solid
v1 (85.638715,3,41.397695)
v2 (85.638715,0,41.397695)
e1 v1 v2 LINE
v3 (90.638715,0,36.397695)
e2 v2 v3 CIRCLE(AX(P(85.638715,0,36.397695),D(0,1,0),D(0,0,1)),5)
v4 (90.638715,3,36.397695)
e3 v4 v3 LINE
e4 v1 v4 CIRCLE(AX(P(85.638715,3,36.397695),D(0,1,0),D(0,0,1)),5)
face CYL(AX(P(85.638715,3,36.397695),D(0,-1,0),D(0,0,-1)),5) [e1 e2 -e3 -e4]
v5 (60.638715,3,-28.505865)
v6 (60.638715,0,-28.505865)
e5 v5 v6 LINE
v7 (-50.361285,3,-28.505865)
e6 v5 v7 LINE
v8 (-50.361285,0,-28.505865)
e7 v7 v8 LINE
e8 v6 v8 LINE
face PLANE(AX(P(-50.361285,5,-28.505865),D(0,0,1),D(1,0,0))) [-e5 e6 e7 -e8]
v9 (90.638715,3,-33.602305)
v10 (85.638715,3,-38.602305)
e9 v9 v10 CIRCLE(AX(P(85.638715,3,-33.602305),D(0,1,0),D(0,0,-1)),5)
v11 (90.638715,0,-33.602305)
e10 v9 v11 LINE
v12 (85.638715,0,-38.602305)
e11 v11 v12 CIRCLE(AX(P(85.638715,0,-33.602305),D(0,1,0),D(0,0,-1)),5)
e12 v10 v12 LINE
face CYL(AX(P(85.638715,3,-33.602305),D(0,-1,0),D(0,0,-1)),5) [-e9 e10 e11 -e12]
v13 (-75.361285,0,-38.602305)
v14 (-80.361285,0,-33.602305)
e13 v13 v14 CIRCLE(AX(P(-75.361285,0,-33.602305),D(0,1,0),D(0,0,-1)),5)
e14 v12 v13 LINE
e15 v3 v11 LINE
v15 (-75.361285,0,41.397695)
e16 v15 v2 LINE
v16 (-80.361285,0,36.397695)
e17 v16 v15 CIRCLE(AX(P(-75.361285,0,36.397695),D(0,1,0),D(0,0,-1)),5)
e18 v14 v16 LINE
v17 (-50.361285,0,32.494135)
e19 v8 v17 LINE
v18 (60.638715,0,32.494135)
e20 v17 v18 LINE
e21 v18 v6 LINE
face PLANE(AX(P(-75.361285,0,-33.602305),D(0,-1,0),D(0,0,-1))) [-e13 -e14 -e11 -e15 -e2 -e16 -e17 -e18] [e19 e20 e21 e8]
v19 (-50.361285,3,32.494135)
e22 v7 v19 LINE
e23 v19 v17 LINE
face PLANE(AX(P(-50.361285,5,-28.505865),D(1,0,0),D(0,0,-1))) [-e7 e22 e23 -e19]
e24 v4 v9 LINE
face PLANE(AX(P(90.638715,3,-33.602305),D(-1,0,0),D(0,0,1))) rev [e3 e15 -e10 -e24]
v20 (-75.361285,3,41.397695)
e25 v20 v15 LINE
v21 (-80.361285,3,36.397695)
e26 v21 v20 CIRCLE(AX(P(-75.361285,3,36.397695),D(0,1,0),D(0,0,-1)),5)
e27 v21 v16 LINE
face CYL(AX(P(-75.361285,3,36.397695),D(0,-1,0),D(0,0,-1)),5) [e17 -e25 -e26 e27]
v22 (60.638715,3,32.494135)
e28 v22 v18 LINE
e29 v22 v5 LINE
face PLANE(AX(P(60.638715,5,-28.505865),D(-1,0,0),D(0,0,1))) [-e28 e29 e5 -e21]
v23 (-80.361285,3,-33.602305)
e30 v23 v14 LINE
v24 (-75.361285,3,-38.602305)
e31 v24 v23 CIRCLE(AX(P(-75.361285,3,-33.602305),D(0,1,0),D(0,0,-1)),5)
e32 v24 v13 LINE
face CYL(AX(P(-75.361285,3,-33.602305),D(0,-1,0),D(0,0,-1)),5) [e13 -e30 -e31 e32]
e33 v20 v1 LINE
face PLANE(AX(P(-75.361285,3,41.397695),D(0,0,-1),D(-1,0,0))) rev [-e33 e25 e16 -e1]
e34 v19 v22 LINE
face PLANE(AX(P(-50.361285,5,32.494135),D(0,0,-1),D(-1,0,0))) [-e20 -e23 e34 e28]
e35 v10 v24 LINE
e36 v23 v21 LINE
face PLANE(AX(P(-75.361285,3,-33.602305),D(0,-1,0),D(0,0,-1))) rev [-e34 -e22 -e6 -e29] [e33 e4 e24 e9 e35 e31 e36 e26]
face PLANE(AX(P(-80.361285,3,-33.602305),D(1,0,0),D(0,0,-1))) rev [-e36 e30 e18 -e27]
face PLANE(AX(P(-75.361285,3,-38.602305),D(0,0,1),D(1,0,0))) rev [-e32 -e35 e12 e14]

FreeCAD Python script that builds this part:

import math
import FreeCAD as App
import Part
import Sketcher
from FreeCAD import Vector

doc = App.newDocument("Part")
params = doc.addObject("Spreadsheet::Sheet", "Params")
for row, (alias, value) in enumerate([
    ("sketch1_radius", "5 mm"),
    ("sketch1_width", "161 mm"),
    ("sketch1_height", "70 mm"),
    ("pad1_length", "3 mm"),
    ("sketch2_width", "111 mm"),
    ("sketch2_height", "61 mm"),
], start=1):
    params.set(f"A{row}", alias)
    params.set(f"B{row}", "=" + value)
    params.setAlias(f"B{row}", alias)

body = doc.addObject("PartDesign::Body", "Body")

# Sketch on XZ plane
sketch1 = doc.addObject("Sketcher::SketchObject", "Sketch")
body.addObject(sketch1)
sketch1.AttachmentSupport = (doc.XZ_Plane, [""])
sketch1.MapMode = "FlatFace"
sketch1.addGeometry(Part.LineSegment(Vector(86, -39, 0), Vector(-75, -39, 0)), False)
sketch1.addGeometry(Part.ArcOfCircle(Part.Circle(Vector(-75, -34, 0), Vector(0, 0, 1), 5), math.radians(-180), math.radians(-90)), False)
sketch1.addGeometry(Part.LineSegment(Vector(-80, -34, 0), Vector(-80, 36, 0)), False)
sketch1.addGeometry(Part.ArcOfCircle(Part.Circle(Vector(-75, 36, 0), Vector(0, 0, 1), 5), math.radians(90), math.radians(180)), False)
sketch1.addGeometry(Part.LineSegment(Vector(-75, 41, 0), Vector(86, 41, 0)), False)
sketch1.addGeometry(Part.ArcOfCircle(Part.Circle(Vector(86, 36, 0), Vector(0, 0, 1), 5), math.radians(0), math.radians(90)), False)
sketch1.addGeometry(Part.LineSegment(Vector(91, 36, 0), Vector(91, -34, 0)), False)
sketch1.addGeometry(Part.ArcOfCircle(Part.Circle(Vector(86, -34, 0), Vector(0, 0, 1), 5), math.radians(-90), math.radians(0)), False)
sketch1.addConstraint(Sketcher.Constraint("Tangent", 0, 2, 1, 2))
sketch1.addConstraint(Sketcher.Constraint("Tangent", 1, 1, 2, 1))
sketch1.addConstraint(Sketcher.Constraint("Tangent", 2, 2, 3, 2))
sketch1.addConstraint(Sketcher.Constraint("Tangent", 3, 1, 4, 1))
sketch1.addConstraint(Sketcher.Constraint("Tangent", 4, 2, 5, 2))
sketch1.addConstraint(Sketcher.Constraint("Tangent", 5, 1, 6, 1))
sketch1.addConstraint(Sketcher.Constraint("Tangent", 6, 2, 7, 2))
sketch1.addConstraint(Sketcher.Constraint("Tangent", 7, 1, 0, 1))
sketch1.addConstraint(Sketcher.Constraint("Horizontal", 0))
sketch1.addConstraint(Sketcher.Constraint("Vertical", 2))
sketch1.addConstraint(Sketcher.Constraint("Horizontal", 4))
sketch1.addConstraint(Sketcher.Constraint("Vertical", 6))
sketch1.addConstraint(Sketcher.Constraint("Equal", 1, 3))
sketch1.addConstraint(Sketcher.Constraint("Equal", 3, 5))
sketch1.addConstraint(Sketcher.Constraint("Equal", 5, 7))
sketch1.addConstraint(Sketcher.Constraint("Radius", 1, 5.0))
sketch1.addConstraint(Sketcher.Constraint("DistanceX", 0, 2, 0, 1, 161.0))
sketch1.addConstraint(Sketcher.Constraint("DistanceY", 2, 1, 2, 2, 70.0))
sketch1.addConstraint(Sketcher.Constraint("DistanceX", 1, 3, -1, 1, 75.361285))
sketch1.addConstraint(Sketcher.Constraint("DistanceY", 1, 3, -1, 1, 33.602305))
sketch1.setExpression("Constraints[15]", "Params.sketch1_radius")
sketch1.setExpression("Constraints[16]", "Params.sketch1_width")
sketch1.setExpression("Constraints[17]", "Params.sketch1_height")
pad1 = doc.addObject("PartDesign::Pad", "Pad")
body.addObject(pad1)
pad1.Profile = sketch1
pad1.setExpression("Length", "Params.pad1_length")
pad1.Reversed = True

# Sketch on XZ plane
sketch2 = doc.addObject("Sketcher::SketchObject", "Sketch001")
body.addObject(sketch2)
sketch2.AttachmentSupport = (doc.XZ_Plane, [""])
sketch2.MapMode = "FlatFace"
sketch2.addGeometry(Part.LineSegment(Vector(-50, -29, 0), Vector(-50, 32, 0)), False)
sketch2.addGeometry(Part.LineSegment(Vector(-50, 32, 0), Vector(61, 32, 0)), False)
sketch2.addGeometry(Part.LineSegment(Vector(61, 32, 0), Vector(61, -29, 0)), False)
sketch2.addGeometry(Part.LineSegment(Vector(61, -29, 0), Vector(-50, -29, 0)), False)
sketch2.addConstraint(Sketcher.Constraint("Coincident", 0, 2, 1, 1))
sketch2.addConstraint(Sketcher.Constraint("Coincident", 1, 2, 2, 1))
sketch2.addConstraint(Sketcher.Constraint("Coincident", 2, 2, 3, 1))
sketch2.addConstraint(Sketcher.Constraint("Coincident", 3, 2, 0, 1))
sketch2.addConstraint(Sketcher.Constraint("Vertical", 0))
sketch2.addConstraint(Sketcher.Constraint("Horizontal", 1))
sketch2.addConstraint(Sketcher.Constraint("Vertical", 2))
sketch2.addConstraint(Sketcher.Constraint("Horizontal", 3))
sketch2.addConstraint(Sketcher.Constraint("DistanceX", 1, 1, 1, 2, 111.0))
sketch2.addConstraint(Sketcher.Constraint("DistanceY", 0, 1, 0, 2, 61.0))
sketch2.addConstraint(Sketcher.Constraint("DistanceX", 0, 2, -1, 1, 50.361285))
sketch2.addConstraint(Sketcher.Constraint("DistanceY", -1, 1, 0, 2, 32.494135))
sketch2.setExpression("Constraints[8]", "Params.sketch2_width")
sketch2.setExpression("Constraints[9]", "Params.sketch2_height")
pocket1 = doc.addObject("PartDesign::Pocket", "Pocket")
body.addObject(pocket1)
pocket1.Profile = sketch2
pocket1.Type = "ThroughAll"
pocket1.Midplane = True

doc.recompute()
